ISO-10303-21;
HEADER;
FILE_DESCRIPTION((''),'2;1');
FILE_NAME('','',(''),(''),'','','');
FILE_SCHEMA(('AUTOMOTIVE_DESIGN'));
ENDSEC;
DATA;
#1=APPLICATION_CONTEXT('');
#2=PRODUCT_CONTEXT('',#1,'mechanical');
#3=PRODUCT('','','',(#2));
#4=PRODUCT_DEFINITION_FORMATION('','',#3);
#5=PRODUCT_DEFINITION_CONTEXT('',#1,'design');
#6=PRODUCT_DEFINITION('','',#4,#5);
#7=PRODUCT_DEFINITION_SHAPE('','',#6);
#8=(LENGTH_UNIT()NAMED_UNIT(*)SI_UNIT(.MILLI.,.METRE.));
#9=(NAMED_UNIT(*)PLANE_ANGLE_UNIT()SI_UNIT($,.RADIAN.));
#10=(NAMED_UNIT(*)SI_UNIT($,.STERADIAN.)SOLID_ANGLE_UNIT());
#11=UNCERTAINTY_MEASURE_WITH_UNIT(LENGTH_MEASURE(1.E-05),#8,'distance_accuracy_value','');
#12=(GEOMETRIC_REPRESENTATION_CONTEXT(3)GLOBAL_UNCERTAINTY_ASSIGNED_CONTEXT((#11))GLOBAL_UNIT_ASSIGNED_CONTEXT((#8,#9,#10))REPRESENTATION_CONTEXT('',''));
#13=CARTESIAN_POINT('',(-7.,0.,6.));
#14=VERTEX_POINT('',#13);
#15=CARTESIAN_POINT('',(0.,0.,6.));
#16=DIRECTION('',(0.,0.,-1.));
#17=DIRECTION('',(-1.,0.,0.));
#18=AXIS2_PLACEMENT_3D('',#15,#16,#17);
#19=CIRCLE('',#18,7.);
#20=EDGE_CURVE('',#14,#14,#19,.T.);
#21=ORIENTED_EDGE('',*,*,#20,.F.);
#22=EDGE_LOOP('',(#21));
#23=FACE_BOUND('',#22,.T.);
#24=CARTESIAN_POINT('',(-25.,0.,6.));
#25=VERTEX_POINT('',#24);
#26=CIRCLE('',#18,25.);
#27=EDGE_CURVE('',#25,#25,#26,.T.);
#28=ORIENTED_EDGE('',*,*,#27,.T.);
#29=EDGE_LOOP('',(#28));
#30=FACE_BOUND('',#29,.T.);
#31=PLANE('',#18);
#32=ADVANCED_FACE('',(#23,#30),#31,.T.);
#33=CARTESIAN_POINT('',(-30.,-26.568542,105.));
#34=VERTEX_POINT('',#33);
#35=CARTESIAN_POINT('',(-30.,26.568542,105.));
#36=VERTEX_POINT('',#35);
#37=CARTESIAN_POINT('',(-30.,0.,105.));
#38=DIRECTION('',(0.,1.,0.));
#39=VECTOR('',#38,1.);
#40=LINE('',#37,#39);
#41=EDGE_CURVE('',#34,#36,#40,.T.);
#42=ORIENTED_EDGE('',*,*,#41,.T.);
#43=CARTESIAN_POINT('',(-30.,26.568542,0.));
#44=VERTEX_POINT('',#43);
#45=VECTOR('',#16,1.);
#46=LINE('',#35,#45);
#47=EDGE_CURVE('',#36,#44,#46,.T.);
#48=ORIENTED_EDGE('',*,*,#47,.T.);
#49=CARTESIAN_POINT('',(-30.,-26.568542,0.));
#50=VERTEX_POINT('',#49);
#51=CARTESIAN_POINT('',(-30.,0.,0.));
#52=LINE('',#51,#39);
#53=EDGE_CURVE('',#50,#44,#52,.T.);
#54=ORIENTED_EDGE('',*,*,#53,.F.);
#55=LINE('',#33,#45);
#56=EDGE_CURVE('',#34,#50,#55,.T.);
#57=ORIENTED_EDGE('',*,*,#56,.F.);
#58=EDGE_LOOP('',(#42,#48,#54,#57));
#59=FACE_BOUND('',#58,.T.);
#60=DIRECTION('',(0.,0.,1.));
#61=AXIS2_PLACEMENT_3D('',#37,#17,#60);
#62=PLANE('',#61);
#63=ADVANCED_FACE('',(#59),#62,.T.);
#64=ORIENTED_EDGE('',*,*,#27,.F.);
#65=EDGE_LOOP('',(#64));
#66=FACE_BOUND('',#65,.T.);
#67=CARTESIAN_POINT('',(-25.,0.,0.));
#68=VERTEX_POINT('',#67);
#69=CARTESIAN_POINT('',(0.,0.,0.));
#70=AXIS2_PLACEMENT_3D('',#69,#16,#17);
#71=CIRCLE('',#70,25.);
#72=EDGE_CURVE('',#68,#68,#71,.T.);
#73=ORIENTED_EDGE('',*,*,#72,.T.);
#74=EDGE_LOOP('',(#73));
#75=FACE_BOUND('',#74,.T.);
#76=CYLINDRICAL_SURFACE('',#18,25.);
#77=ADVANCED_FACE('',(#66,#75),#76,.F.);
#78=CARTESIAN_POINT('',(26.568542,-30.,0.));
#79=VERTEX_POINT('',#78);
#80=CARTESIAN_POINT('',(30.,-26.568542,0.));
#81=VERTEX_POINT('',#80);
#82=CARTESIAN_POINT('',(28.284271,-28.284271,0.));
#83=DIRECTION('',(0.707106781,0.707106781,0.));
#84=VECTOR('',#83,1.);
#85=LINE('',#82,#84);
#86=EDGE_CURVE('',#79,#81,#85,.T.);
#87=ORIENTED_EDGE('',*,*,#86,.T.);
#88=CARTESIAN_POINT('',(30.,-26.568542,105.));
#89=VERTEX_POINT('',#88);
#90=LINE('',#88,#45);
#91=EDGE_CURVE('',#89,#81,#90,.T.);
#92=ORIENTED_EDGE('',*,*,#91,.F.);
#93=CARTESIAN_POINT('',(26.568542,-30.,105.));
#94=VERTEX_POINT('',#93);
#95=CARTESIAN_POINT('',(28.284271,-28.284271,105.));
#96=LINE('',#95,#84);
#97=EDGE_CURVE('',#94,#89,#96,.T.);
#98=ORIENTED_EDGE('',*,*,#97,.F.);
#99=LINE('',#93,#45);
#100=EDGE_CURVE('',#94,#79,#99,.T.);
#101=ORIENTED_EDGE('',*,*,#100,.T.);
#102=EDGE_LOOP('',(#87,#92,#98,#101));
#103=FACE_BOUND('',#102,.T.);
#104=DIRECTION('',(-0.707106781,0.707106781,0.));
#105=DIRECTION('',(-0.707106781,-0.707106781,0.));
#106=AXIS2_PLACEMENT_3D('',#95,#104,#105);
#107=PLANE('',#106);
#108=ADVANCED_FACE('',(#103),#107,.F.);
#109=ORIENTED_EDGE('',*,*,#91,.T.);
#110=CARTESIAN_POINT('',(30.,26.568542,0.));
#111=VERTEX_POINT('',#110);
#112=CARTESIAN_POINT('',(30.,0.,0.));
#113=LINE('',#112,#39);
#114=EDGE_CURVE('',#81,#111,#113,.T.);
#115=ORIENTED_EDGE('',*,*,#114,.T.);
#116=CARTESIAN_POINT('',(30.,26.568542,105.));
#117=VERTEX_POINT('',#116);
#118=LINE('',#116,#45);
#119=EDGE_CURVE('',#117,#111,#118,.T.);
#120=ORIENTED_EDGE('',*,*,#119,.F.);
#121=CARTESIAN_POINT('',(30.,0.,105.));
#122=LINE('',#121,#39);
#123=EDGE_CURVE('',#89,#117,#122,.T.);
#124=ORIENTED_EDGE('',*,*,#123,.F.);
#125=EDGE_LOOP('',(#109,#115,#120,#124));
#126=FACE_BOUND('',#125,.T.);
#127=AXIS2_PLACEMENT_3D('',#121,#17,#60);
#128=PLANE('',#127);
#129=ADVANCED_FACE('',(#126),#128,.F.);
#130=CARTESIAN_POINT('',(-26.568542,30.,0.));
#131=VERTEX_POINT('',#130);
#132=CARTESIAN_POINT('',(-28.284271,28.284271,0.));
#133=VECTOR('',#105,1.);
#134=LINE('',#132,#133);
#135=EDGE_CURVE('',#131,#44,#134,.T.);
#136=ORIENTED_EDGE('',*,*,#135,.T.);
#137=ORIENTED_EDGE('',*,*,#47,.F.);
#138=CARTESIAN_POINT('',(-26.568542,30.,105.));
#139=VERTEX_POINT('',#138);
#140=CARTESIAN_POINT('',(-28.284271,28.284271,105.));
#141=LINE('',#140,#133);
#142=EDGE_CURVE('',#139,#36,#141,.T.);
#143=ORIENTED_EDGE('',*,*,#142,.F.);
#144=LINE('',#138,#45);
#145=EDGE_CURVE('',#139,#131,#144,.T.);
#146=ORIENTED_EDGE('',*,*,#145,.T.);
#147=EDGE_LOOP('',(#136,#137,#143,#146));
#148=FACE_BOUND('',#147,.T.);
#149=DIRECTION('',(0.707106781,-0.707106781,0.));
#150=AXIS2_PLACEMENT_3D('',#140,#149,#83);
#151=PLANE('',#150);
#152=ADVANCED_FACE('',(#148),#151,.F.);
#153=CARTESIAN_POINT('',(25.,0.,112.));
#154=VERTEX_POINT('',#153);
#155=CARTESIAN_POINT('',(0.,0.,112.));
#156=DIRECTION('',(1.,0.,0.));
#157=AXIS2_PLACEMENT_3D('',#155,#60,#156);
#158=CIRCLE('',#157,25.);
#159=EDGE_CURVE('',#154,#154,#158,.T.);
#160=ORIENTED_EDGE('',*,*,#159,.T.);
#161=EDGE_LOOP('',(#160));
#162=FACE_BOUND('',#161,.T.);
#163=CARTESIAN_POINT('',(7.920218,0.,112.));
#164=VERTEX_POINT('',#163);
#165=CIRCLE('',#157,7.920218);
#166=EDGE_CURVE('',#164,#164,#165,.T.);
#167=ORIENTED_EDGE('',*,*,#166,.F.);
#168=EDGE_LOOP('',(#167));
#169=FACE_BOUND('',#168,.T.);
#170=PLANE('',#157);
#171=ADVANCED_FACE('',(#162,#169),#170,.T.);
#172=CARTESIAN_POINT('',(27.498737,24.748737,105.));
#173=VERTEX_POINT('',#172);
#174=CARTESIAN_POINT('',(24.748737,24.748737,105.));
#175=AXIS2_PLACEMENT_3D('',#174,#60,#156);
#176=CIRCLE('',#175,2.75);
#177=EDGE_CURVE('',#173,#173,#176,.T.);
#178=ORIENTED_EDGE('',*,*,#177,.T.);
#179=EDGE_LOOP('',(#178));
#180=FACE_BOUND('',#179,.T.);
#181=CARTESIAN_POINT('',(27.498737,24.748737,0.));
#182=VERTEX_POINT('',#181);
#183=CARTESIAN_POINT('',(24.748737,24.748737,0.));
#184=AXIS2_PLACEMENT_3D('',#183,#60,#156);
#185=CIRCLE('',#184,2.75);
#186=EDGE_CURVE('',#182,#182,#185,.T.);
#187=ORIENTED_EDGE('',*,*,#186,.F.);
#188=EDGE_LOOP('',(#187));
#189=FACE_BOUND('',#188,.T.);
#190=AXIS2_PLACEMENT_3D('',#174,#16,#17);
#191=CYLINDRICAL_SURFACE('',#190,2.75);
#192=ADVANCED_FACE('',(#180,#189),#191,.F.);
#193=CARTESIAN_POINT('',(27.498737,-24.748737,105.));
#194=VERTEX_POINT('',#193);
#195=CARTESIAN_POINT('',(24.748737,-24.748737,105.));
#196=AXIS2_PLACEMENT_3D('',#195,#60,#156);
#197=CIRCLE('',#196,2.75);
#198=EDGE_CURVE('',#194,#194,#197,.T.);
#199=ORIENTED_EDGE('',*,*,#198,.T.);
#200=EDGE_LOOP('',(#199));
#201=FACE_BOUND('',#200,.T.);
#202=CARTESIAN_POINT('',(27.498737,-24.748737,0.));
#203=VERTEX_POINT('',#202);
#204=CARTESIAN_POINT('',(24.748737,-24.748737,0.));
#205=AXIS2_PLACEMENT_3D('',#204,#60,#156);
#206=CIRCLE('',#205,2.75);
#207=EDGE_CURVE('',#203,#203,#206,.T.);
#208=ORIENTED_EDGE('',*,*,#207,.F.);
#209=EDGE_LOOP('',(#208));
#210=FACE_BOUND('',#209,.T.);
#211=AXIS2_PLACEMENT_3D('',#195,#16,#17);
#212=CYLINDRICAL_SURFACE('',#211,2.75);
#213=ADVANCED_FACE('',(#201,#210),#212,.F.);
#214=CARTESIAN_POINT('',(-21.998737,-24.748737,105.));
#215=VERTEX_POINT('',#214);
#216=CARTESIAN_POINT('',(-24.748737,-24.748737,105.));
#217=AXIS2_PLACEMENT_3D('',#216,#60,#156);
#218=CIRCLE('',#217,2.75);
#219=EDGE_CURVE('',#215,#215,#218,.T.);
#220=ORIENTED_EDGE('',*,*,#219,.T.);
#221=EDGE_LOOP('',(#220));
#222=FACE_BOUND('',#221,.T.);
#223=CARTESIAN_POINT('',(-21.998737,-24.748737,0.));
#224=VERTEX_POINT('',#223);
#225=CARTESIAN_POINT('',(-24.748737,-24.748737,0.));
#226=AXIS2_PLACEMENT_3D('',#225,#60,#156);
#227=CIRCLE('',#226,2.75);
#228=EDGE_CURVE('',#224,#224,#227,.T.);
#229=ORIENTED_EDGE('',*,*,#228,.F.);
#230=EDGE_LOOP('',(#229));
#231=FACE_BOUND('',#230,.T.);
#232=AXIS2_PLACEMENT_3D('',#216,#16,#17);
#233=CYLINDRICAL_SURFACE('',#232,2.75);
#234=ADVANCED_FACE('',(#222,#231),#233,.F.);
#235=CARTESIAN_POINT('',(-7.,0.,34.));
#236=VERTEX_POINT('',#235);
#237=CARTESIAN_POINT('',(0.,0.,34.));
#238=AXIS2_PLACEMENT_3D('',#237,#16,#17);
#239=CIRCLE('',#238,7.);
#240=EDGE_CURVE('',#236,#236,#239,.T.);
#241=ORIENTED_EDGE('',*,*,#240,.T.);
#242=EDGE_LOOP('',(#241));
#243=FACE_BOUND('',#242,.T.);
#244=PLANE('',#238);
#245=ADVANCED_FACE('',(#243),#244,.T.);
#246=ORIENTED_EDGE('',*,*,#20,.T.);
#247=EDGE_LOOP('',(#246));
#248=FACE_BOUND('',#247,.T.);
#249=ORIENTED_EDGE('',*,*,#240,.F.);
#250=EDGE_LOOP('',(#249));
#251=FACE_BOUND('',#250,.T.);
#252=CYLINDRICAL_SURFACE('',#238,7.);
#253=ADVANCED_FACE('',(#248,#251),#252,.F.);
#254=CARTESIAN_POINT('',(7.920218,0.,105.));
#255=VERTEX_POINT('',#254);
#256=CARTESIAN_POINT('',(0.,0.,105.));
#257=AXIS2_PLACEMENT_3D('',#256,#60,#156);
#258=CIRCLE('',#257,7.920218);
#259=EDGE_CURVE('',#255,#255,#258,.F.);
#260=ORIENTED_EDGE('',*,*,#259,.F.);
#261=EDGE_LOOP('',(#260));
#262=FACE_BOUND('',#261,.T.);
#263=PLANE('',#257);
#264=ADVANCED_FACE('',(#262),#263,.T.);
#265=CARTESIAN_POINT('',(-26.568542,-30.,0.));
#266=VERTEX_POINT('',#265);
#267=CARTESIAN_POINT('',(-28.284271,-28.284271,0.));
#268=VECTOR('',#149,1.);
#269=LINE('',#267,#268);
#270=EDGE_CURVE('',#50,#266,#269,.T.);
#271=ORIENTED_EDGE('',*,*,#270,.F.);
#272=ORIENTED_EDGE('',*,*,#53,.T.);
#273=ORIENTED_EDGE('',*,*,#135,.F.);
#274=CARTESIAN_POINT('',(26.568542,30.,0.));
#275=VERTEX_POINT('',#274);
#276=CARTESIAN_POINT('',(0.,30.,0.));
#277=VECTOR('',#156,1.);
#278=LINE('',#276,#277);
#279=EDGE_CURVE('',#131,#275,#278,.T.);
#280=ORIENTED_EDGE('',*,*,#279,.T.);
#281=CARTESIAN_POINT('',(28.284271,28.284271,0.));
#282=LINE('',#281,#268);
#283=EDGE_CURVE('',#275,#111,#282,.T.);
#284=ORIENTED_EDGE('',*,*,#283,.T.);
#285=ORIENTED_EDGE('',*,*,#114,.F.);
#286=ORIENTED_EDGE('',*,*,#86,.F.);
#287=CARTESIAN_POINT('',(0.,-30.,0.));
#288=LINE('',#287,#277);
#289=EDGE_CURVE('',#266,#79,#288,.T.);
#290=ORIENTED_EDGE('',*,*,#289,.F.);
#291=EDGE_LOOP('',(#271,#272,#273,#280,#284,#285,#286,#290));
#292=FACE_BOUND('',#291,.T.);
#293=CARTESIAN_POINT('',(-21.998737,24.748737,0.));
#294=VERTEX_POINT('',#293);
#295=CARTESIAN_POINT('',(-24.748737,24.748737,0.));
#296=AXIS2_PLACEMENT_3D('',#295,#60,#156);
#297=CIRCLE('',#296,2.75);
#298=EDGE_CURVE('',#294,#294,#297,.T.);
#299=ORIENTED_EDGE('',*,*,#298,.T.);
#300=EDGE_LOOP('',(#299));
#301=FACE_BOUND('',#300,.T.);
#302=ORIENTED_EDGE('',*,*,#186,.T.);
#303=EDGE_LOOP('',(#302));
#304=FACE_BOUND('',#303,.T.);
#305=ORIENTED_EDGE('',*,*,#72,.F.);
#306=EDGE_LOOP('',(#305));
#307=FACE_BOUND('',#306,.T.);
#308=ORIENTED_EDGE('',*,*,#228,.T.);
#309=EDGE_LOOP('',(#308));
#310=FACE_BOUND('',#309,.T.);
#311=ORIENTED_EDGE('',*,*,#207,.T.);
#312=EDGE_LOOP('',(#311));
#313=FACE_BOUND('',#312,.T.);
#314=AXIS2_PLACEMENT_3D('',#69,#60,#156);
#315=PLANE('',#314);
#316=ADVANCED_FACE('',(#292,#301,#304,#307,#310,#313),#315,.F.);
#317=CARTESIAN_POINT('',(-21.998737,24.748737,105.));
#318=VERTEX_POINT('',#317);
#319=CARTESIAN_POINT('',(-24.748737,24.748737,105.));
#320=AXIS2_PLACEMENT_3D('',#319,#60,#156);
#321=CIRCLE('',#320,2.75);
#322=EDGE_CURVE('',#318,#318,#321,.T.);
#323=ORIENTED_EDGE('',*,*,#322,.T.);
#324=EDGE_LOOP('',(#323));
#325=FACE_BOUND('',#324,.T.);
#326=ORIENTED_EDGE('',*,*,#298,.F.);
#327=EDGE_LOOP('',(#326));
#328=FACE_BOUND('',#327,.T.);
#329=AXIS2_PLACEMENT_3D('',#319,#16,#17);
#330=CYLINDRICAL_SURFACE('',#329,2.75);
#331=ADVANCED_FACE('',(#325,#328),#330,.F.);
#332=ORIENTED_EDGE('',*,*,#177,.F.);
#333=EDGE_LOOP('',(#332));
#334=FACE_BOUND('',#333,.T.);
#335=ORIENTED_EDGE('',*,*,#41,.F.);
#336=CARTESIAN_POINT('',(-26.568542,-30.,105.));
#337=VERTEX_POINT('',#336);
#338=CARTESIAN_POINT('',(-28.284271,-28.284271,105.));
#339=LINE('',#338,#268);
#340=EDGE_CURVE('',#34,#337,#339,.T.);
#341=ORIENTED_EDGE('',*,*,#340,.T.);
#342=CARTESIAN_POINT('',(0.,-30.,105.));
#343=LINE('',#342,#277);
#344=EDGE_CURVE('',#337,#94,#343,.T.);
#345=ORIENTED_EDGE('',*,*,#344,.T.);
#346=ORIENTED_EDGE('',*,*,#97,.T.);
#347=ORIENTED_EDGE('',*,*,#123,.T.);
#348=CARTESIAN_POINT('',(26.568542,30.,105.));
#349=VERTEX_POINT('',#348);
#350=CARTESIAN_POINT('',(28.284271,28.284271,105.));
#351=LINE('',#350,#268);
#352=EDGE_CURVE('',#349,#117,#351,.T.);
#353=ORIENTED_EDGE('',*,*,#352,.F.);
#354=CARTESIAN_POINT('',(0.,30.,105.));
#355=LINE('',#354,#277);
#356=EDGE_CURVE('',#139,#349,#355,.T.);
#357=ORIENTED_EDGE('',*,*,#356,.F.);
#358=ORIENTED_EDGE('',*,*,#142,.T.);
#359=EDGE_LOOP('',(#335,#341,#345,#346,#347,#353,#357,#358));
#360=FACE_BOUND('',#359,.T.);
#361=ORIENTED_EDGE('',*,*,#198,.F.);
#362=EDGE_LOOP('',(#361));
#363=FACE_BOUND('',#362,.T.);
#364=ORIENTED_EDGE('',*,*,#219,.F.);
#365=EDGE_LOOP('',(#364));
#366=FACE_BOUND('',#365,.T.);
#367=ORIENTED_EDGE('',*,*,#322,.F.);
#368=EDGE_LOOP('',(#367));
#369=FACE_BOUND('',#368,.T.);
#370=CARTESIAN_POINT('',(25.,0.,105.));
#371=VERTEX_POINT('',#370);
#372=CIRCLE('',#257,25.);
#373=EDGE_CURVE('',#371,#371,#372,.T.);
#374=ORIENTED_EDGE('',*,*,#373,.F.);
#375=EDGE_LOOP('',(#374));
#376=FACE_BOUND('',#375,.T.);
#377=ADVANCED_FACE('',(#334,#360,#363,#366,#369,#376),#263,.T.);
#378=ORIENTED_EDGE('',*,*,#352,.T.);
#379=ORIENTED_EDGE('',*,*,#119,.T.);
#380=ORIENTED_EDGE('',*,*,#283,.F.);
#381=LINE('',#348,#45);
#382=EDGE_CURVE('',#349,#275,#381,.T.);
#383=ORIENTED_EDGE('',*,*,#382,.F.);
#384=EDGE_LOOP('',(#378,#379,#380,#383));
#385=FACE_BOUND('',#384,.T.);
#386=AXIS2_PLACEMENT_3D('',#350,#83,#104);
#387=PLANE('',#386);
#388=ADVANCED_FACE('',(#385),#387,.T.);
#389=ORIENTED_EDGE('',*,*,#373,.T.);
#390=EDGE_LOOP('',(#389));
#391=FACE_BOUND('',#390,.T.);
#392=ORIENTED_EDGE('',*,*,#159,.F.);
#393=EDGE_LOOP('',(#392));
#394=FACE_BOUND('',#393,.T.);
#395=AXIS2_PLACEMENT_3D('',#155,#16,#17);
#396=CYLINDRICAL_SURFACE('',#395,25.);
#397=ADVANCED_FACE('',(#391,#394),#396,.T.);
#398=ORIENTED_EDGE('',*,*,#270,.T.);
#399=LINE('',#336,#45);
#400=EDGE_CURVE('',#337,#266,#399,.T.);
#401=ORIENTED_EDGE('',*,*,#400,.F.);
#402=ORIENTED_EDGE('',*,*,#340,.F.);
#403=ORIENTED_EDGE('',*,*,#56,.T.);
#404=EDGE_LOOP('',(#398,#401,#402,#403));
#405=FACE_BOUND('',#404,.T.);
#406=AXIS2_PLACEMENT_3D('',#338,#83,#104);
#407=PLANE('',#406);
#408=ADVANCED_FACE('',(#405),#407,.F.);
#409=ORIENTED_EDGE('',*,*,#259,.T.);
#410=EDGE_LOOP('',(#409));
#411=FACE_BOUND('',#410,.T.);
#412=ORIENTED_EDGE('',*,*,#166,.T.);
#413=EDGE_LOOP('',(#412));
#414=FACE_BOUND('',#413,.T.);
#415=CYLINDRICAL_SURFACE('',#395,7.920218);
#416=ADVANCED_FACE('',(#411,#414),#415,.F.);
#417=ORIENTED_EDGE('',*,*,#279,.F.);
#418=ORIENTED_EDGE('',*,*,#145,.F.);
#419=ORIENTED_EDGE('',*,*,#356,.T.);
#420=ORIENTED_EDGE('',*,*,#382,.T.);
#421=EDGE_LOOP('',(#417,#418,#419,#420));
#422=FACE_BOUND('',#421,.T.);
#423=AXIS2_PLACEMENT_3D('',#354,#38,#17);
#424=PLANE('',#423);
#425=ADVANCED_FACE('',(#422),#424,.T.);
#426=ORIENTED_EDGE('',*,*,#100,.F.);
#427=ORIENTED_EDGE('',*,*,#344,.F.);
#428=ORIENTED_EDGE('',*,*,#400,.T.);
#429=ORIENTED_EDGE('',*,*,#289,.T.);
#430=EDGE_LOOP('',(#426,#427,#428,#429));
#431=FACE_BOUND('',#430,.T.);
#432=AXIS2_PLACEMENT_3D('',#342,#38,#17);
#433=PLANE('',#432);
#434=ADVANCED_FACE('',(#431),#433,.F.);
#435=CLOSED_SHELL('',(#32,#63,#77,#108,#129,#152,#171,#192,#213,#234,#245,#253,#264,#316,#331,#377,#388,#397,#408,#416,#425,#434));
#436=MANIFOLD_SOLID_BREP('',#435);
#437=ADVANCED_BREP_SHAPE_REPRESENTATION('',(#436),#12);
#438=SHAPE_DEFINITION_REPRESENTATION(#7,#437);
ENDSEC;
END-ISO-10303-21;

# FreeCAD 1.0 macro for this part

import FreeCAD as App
import Part
import Sketcher
from FreeCAD import Vector
Q = App.Units.Quantity


def add_polygon(sketch, points):
    """Adds a closed chain of lines whose ends are joined by coincident constraints."""
    first, n = sketch.GeometryCount, len(points)
    for a, b in zip(points, points[1:] + points[:1]):
        sketch.addGeometry(Part.LineSegment(App.Vector(*a, 0), App.Vector(*b, 0)), False)
    for i in range(n):
        sketch.addConstraint(Sketcher.Constraint("Coincident", first + i, 2, first + (i + 1) % n, 1))

doc = App.newDocument("Part")
body = doc.addObject("PartDesign::Body", "Body")

# Sketch on XY plane
sketch1 = body.newObject("Sketcher::SketchObject", "Sketch")
sketch1.AttachmentSupport = (doc.getObject("XY_Plane"), [""])
sketch1.MapMode = "FlatFace"
add_polygon(sketch1, [(26.6, 30), (-26.6, 30), (-30, 26.6), (-30, -26.6), (-26.6, -30), (26.6, -30), (30, -26.6), (30, 26.6)])  # lines 0-7
sketch1.addGeometry(Part.Circle(Vector(24.7, -24.7, 0), Vector(0, 0, 1), 2.8), False)  # 8
sketch1.addGeometry(Part.Circle(Vector(-24.7, -24.7, 0), Vector(0, 0, 1), 2.8), False)  # 9
sketch1.addGeometry(Part.Circle(Vector(24.7, 24.7, 0), Vector(0, 0, 1), 2.8), False)  # 10
sketch1.addGeometry(Part.Circle(Vector(-24.7, 24.7, 0), Vector(0, 0, 1), 2.8), False)  # 11
sketch1.addConstraint(Sketcher.Constraint("Horizontal", 0))
sketch1.addConstraint(Sketcher.Constraint("Vertical", 2))
sketch1.addConstraint(Sketcher.Constraint("Horizontal", 4))
sketch1.addConstraint(Sketcher.Constraint("Vertical", 6))
sketch1.addConstraint(Sketcher.Constraint("Equal", 8, 9))
sketch1.addConstraint(Sketcher.Constraint("Equal", 9, 10))
sketch1.addConstraint(Sketcher.Constraint("Equal", 10, 11))
sketch1.addConstraint(Sketcher.Constraint("Symmetric", 9, 3, 10, 3, -1, 1))
sketch1.addConstraint(Sketcher.Constraint("Symmetric", 8, 3, 11, 3, -1, 1))
sketch1.addConstraint(Sketcher.Constraint("Symmetric", 0, 2, 4, 2, -1, 1))
sketch1.addConstraint(Sketcher.Constraint("Symmetric", 1, 2, 5, 2, -1, 1))
sketch1.addConstraint(Sketcher.Constraint("Symmetric", 8, 3, 9, 3, -2))
sketch1.addConstraint(Sketcher.Constraint("Perpendicular", 1, 3))
sketch1.addConstraint(Sketcher.Constraint("Perpendicular", 5, 7))
sketch1.addConstraint(Sketcher.Constraint("Horizontal", 2, 2, 5, 2))
sketch1.addConstraint(Sketcher.Constraint("Horizontal", 1, 2, 6, 2))
sketch1.addConstraint(Sketcher.Constraint("Vertical", 0, 2, 3, 2))
sketch1.addConstraint(Sketcher.Constraint("Equal", 4, 2))
sketch1.addConstraint(Sketcher.Constraint("Diameter", 8, Q("5.5 mm")))
sketch1.addConstraint(Sketcher.Constraint("DistanceY", -1, 1, 0, 2, Q("30 mm")))
sketch1.addConstraint(Sketcher.Constraint("DistanceX", 0, 2, 0, 1, Q("53.137085 mm")))
sketch1.addConstraint(Sketcher.Constraint("DistanceX", 0, 2, 10, 3, Q("51.31728 mm")))
sketch1.addConstraint(Sketcher.Constraint("DistanceY", 9, 3, 1, 2, Q("51.31728 mm")))
pad1 = body.newObject("PartDesign::Pad", "Pad")
pad1.Profile = sketch1
pad1.Length = 105

# Sketch on XY plane
sketch2 = body.newObject("Sketcher::SketchObject", "Sketch001")
sketch2.AttachmentSupport = (doc.getObject("XY_Plane"), [""])
sketch2.MapMode = "FlatFace"
sketch2.AttachmentOffset = App.Placement(Vector(0, 0, 105), App.Rotation())
sketch2.addGeometry(Part.Circle(Vector(0, 0, 0), Vector(0, 0, 1), 25), False)
sketch2.addGeometry(Part.Circle(Vector(0, 0, 0), Vector(0, 0, 1), 8), False)
sketch2.addConstraint(Sketcher.Constraint("Coincident", 0, 3, -1, 1))
sketch2.addConstraint(Sketcher.Constraint("Coincident", 1, 3, -1, 1))
sketch2.addConstraint(Sketcher.Constraint("Diameter", 0, Q("50 mm")))
sketch2.addConstraint(Sketcher.Constraint("Diameter", 1, Q("15.840437 mm")))
pad2 = body.newObject("PartDesign::Pad", "Pad001")
pad2.Profile = sketch2
pad2.Length = 7

# Sketch on XY plane
sketch3 = body.newObject("Sketcher::SketchObject", "Sketch002")
sketch3.AttachmentSupport = (doc.getObject("XY_Plane"), [""])
sketch3.MapMode = "FlatFace"
sketch3.addGeometry(Part.Circle(Vector(0, 0, 0), Vector(0, 0, 1), 25), False)
sketch3.addGeometry(Part.Circle(Vector(0, 0, 0), Vector(0, 0, 1), 7), False)
sketch3.addConstraint(Sketcher.Constraint("Coincident", 0, 3, -1, 1))
sketch3.addConstraint(Sketcher.Constraint("Coincident", 1, 3, -1, 1))
sketch3.addConstraint(Sketcher.Constraint("Diameter", 0, Q("50 mm")))
sketch3.addConstraint(Sketcher.Constraint("Diameter", 1, Q("14 mm")))
pocket1 = body.newObject("PartDesign::Pocket", "Pocket")
pocket1.Profile = sketch3
pocket1.Length = 6
pocket1.Reversed = True

# Sketch on XY plane
sketch4 = body.newObject("Sketcher::SketchObject", "Sketch003")
sketch4.AttachmentSupport = (doc.getObject("XY_Plane"), [""])
sketch4.MapMode = "FlatFace"
sketch4.addGeometry(Part.Circle(Vector(0, 0, 0), Vector(0, 0, 1), 7), False)
sketch4.addConstraint(Sketcher.Constraint("Coincident", 0, 3, -1, 1))
sketch4.addConstraint(Sketcher.Constraint("Diameter", 0, Q("14 mm")))
pocket2 = body.newObject("PartDesign::Pocket", "Pocket001")
pocket2.Profile = sketch4
pocket2.Length = 34
pocket2.Reversed = True

doc.recompute()
